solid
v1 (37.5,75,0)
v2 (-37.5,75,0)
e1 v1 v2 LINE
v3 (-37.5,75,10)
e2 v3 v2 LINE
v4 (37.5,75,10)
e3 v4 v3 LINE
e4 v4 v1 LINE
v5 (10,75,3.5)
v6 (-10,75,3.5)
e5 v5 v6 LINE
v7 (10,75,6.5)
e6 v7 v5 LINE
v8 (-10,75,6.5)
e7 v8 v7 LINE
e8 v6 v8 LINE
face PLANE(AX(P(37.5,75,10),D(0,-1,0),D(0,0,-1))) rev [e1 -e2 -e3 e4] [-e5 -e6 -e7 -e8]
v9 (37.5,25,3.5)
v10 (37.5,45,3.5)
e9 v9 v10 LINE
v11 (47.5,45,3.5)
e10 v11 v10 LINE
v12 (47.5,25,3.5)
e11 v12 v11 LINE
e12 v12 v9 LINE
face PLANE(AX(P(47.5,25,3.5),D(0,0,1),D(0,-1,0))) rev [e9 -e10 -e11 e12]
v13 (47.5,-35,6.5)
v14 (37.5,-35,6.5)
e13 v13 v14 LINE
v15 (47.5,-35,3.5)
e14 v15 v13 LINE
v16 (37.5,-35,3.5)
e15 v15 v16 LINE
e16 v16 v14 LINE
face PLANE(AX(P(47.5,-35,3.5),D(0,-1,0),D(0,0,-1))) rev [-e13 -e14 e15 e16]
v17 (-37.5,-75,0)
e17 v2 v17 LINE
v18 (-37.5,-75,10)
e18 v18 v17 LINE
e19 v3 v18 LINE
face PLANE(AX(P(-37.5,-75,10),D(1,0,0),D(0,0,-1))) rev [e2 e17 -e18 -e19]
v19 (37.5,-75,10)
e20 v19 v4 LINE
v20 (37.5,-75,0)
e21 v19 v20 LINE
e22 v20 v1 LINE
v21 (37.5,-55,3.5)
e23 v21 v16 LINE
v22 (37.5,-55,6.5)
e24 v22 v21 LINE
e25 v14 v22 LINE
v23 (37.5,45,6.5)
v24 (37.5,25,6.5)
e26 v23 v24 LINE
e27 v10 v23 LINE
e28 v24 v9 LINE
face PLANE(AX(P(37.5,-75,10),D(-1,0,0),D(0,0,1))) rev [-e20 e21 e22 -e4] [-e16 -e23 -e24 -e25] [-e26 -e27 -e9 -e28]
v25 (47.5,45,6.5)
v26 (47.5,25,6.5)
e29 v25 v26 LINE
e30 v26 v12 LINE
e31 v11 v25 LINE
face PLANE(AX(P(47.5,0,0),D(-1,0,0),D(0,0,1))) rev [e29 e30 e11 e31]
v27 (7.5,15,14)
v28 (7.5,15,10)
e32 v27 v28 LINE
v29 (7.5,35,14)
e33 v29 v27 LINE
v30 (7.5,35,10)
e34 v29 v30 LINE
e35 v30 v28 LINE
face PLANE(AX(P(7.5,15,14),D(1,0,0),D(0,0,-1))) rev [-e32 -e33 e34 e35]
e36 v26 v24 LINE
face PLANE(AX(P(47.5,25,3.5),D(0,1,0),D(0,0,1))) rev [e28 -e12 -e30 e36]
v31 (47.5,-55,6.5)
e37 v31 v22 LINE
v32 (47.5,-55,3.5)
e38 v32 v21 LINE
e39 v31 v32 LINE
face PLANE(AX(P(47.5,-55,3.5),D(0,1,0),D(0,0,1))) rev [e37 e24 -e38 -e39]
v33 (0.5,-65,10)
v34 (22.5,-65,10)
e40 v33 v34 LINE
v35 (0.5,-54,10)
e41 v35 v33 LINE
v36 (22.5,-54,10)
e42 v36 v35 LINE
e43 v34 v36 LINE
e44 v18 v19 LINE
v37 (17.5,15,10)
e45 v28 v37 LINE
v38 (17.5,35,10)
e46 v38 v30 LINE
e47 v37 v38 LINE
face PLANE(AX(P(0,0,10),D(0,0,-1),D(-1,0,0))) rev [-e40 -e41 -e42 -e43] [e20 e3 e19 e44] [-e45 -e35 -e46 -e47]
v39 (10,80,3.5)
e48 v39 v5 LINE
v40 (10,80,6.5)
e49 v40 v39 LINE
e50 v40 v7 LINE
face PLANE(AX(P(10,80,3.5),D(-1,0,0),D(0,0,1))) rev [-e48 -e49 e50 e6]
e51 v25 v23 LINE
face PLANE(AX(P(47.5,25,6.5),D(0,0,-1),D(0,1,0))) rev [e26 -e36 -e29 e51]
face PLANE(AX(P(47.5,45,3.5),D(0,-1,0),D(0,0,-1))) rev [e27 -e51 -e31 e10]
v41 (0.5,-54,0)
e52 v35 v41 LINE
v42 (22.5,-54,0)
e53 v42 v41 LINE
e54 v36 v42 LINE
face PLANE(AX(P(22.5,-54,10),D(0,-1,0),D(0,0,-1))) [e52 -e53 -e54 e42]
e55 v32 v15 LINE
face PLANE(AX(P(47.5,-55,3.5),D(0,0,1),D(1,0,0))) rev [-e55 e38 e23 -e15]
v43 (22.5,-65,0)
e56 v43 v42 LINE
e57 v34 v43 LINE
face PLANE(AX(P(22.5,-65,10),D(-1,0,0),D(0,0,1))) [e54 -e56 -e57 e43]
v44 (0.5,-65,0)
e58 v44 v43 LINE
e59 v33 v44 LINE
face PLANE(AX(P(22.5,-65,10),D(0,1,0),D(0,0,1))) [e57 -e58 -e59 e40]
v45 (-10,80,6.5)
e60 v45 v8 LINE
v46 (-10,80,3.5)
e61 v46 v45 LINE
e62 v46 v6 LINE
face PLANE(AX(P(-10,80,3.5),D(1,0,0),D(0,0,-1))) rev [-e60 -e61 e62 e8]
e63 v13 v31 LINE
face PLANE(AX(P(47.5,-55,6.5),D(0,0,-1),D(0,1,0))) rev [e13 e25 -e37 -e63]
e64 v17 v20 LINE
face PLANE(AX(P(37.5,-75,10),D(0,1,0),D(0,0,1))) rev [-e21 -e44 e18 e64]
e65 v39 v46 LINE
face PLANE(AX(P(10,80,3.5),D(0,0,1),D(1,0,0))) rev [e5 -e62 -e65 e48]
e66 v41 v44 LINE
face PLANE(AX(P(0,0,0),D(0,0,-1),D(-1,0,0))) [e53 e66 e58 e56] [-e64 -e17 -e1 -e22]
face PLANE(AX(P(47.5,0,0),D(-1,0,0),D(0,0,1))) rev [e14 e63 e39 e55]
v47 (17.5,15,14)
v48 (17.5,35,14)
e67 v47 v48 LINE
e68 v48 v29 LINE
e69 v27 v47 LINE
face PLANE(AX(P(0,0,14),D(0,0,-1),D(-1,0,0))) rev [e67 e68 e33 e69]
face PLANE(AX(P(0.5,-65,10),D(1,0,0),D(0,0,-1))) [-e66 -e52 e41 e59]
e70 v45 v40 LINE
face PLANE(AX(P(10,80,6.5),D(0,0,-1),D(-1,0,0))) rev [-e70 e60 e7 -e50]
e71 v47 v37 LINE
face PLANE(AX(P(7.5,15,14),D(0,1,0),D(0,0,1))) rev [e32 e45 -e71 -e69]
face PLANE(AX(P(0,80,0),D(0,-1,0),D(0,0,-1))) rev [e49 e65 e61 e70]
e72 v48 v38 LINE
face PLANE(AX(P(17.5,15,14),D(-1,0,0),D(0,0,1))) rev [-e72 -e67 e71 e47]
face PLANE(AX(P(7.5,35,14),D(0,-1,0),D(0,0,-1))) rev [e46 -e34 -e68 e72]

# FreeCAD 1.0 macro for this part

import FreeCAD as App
import Part
import Sketcher
from FreeCAD import Vector
Q = App.Units.Quantity


def add_polygon(sketch, points):
    """Adds a closed chain of lines whose ends are joined by coincident constraints."""
    first, n = sketch.GeometryCount, len(points)
    for a, b in zip(points, points[1:] + points[:1]):
        sketch.addGeometry(Part.LineSegment(App.Vector(*a, 0), App.Vector(*b, 0)), False)
    for i in range(n):
        sketch.addConstraint(Sketcher.Constraint("Coincident", first + i, 2, first + (i + 1) % n, 1))

doc = App.newDocument("Part")
body = doc.addObject("PartDesign::Body", "Body")

# Sketch on XY plane
sketch1 = doc.addObject("Sketcher::SketchObject", "Sketch")
body.addObject(sketch1)
sketch1.AttachmentSupport = (doc.XY_Plane, [""])
sketch1.MapMode = "FlatFace"
add_polygon(sketch1, [(-37.5, -75), (37.5, -75), (37.5, 75), (-37.5, 75)])  # lines 0-3
add_polygon(sketch1, [(22.5, -54), (22.5, -65), (0.5, -65), (0.5, -54)])  # lines 4-7
sketch1.addConstraint([
    Sketcher.Constraint("Horizontal", 0),
    Sketcher.Constraint("Vertical", 1),
    Sketcher.Constraint("Horizontal", 2),
    Sketcher.Constraint("Vertical", 3),
    Sketcher.Constraint("Vertical", 4),
    Sketcher.Constraint("Horizontal", 5),
    Sketcher.Constraint("Vertical", 6),
    Sketcher.Constraint("Horizontal", 7),
    Sketcher.Constraint("Symmetric", 0, 2, 2, 2, -1, 1),
    Sketcher.Constraint("DistanceX", 0, 1, 0, 2, Q("75 mm")),
    Sketcher.Constraint("DistanceX", 5, 2, 5, 1, Q("22 mm")),
    Sketcher.Constraint("DistanceY", 1, 1, 1, 2, Q("150 mm")),
    Sketcher.Constraint("DistanceY", 4, 2, 4, 1, Q("11 mm")),
    Sketcher.Constraint("DistanceY", 4, 2, -1, 1, Q("65 mm")),
    Sketcher.Constraint("DistanceX", 4, 2, 0, 2, Q("15 mm")),
])
pad1 = doc.addObject("PartDesign::Pad", "Pad")
body.addObject(pad1)
pad1.Profile = sketch1
pad1.Length = 10

# Sketch on XY plane
sketch2 = doc.addObject("Sketcher::SketchObject", "Sketch001")
body.addObject(sketch2)
sketch2.AttachmentSupport = (doc.XY_Plane, [""])
sketch2.MapMode = "FlatFace"
sketch2.AttachmentOffset = App.Placement(Vector(0, 0, 10), App.Rotation())
add_polygon(sketch2, [(7.5, 35), (7.5, 15), (17.5, 15), (17.5, 35)])  # lines 0-3
sketch2.addConstraint([
    Sketcher.Constraint("Vertical", 0),
    Sketcher.Constraint("Horizontal", 1),
    Sketcher.Constraint("Vertical", 2),
    Sketcher.Constraint("Horizontal", 3),
    Sketcher.Constraint("DistanceX", 1, 1, 1, 2, Q("10 mm")),
    Sketcher.Constraint("DistanceY", 0, 2, 0, 1, Q("20 mm")),
    Sketcher.Constraint("DistanceY", -1, 1, 0, 2, Q("15 mm")),
    Sketcher.Constraint("DistanceX", -1, 1, 0, 2, Q("7.5 mm")),
])
pad2 = doc.addObject("PartDesign::Pad", "Pad001")
body.addObject(pad2)
pad2.Profile = sketch2
pad2.Length = 4

# Sketch on YZ plane
sketch3 = doc.addObject("Sketcher::SketchObject", "Sketch002")
body.addObject(sketch3)
sketch3.AttachmentSupport = (doc.YZ_Plane, [""])
sketch3.MapMode = "FlatFace"
sketch3.AttachmentOffset = App.Placement(Vector(0, 0, 37.5), App.Rotation())
add_polygon(sketch3, [(-55, 6.5), (-55, 3.5), (-35, 3.5), (-35, 6.5)])  # lines 0-3
add_polygon(sketch3, [(25, 6.5), (25, 3.5), (45, 3.5), (45, 6.5)])  # lines 4-7
sketch3.addConstraint([
    Sketcher.Constraint("Vertical", 0),
    Sketcher.Constraint("Horizontal", 1),
    Sketcher.Constraint("Vertical", 2),
    Sketcher.Constraint("Horizontal", 3),
    Sketcher.Constraint("Vertical", 4),
    Sketcher.Constraint("Horizontal", 5),
    Sketcher.Constraint("Vertical", 6),
    Sketcher.Constraint("Horizontal", 7),
    Sketcher.Constraint("Horizontal", 1, 2, 4, 2),
    Sketcher.Constraint("Horizontal", 3, 2, 6, 2),
    Sketcher.Constraint("Equal", 3, 5),
    Sketcher.Constraint("DistanceX", 1, 1, 1, 2, Q("20 mm")),
    Sketcher.Constraint("DistanceY", 0, 2, 0, 1, Q("3 mm")),
    Sketcher.Constraint("DistanceX", 0, 2, -1, 1, Q("55 mm")),
    Sketcher.Constraint("DistanceX", -1, 1, 4, 2, Q("25 mm")),
    Sketcher.Constraint("DistanceY", -1, 1, 0, 2, Q("3.5 mm")),
])
pad3 = doc.addObject("PartDesign::Pad", "Pad002")
body.addObject(pad3)
pad3.Profile = sketch3
pad3.Length = 10

# Sketch on XZ plane
sketch4 = doc.addObject("Sketcher::SketchObject", "Sketch003")
body.addObject(sketch4)
sketch4.AttachmentSupport = (doc.XZ_Plane, [""])
sketch4.MapMode = "FlatFace"
sketch4.AttachmentOffset = App.Placement(Vector(0, 0, -75), App.Rotation())
add_polygon(sketch4, [(10, 6.5), (10, 3.5), (-10, 3.5), (-10, 6.5)])  # lines 0-3
sketch4.addConstraint([
    Sketcher.Constraint("Vertical", 0),
    Sketcher.Constraint("Horizontal", 1),
    Sketcher.Constraint("Vertical", 2),
    Sketcher.Constraint("Horizontal", 3),
    Sketcher.Constraint("DistanceX", 1, 2, 1, 1, Q("20 mm")),
    Sketcher.Constraint("DistanceY", 0, 2, 0, 1, Q("3 mm")),
    Sketcher.Constraint("DistanceX", -1, 1, 0, 2, Q("10 mm")),
    Sketcher.Constraint("DistanceY", -1, 1, 0, 2, Q("3.5 mm")),
])
pad4 = doc.addObject("PartDesign::Pad", "Pad003")
body.addObject(pad4)
pad4.Profile = sketch4
pad4.Length = 5
pad4.Reversed = True

doc.recompute()
